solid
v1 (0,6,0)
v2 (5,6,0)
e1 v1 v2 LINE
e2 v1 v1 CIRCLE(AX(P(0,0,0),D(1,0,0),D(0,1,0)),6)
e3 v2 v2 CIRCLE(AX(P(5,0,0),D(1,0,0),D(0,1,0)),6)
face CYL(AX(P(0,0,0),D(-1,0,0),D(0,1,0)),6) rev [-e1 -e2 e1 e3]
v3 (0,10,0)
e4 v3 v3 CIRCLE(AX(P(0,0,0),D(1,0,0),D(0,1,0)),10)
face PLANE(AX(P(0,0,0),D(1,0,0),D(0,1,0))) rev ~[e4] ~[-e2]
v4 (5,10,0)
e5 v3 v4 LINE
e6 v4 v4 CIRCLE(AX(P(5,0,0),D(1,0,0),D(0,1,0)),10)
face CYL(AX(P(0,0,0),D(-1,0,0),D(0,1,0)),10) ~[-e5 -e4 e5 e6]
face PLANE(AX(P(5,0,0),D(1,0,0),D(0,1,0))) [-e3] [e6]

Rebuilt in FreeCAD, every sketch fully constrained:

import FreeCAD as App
import Part
import Sketcher

V = App.Vector
Q = App.Units.Quantity

doc = App.newDocument("Part")
body = doc.addObject("PartDesign::Body", "Body")

# Sketch on YZ plane
sketch1 = doc.addObject("Sketcher::SketchObject", "Sketch")
body.addObject(sketch1)
sketch1.AttachmentSupport = (doc.YZ_Plane, [""])
sketch1.MapMode = "FlatFace"
sketch1.addGeometry([
    Part.Circle(V(0, 0, 0), V(0, 0, 1), 10),
    Part.Circle(V(0, 0, 0), V(0, 0, 1), 6),
], False)
sketch1.addConstraint([
    Sketcher.Constraint("Coincident", 0, 3, -1, 1),
    Sketcher.Constraint("Coincident", 1, 3, -1, 1),
    Sketcher.Constraint("Diameter", 0, Q("20 mm")),
    Sketcher.Constraint("Diameter", 1, Q("12 mm")),
])
pad1 = doc.addObject("PartDesign::Pad", "Pad")
body.addObject(pad1)
pad1.Profile = sketch1
pad1.Length = 5

doc.recompute()
